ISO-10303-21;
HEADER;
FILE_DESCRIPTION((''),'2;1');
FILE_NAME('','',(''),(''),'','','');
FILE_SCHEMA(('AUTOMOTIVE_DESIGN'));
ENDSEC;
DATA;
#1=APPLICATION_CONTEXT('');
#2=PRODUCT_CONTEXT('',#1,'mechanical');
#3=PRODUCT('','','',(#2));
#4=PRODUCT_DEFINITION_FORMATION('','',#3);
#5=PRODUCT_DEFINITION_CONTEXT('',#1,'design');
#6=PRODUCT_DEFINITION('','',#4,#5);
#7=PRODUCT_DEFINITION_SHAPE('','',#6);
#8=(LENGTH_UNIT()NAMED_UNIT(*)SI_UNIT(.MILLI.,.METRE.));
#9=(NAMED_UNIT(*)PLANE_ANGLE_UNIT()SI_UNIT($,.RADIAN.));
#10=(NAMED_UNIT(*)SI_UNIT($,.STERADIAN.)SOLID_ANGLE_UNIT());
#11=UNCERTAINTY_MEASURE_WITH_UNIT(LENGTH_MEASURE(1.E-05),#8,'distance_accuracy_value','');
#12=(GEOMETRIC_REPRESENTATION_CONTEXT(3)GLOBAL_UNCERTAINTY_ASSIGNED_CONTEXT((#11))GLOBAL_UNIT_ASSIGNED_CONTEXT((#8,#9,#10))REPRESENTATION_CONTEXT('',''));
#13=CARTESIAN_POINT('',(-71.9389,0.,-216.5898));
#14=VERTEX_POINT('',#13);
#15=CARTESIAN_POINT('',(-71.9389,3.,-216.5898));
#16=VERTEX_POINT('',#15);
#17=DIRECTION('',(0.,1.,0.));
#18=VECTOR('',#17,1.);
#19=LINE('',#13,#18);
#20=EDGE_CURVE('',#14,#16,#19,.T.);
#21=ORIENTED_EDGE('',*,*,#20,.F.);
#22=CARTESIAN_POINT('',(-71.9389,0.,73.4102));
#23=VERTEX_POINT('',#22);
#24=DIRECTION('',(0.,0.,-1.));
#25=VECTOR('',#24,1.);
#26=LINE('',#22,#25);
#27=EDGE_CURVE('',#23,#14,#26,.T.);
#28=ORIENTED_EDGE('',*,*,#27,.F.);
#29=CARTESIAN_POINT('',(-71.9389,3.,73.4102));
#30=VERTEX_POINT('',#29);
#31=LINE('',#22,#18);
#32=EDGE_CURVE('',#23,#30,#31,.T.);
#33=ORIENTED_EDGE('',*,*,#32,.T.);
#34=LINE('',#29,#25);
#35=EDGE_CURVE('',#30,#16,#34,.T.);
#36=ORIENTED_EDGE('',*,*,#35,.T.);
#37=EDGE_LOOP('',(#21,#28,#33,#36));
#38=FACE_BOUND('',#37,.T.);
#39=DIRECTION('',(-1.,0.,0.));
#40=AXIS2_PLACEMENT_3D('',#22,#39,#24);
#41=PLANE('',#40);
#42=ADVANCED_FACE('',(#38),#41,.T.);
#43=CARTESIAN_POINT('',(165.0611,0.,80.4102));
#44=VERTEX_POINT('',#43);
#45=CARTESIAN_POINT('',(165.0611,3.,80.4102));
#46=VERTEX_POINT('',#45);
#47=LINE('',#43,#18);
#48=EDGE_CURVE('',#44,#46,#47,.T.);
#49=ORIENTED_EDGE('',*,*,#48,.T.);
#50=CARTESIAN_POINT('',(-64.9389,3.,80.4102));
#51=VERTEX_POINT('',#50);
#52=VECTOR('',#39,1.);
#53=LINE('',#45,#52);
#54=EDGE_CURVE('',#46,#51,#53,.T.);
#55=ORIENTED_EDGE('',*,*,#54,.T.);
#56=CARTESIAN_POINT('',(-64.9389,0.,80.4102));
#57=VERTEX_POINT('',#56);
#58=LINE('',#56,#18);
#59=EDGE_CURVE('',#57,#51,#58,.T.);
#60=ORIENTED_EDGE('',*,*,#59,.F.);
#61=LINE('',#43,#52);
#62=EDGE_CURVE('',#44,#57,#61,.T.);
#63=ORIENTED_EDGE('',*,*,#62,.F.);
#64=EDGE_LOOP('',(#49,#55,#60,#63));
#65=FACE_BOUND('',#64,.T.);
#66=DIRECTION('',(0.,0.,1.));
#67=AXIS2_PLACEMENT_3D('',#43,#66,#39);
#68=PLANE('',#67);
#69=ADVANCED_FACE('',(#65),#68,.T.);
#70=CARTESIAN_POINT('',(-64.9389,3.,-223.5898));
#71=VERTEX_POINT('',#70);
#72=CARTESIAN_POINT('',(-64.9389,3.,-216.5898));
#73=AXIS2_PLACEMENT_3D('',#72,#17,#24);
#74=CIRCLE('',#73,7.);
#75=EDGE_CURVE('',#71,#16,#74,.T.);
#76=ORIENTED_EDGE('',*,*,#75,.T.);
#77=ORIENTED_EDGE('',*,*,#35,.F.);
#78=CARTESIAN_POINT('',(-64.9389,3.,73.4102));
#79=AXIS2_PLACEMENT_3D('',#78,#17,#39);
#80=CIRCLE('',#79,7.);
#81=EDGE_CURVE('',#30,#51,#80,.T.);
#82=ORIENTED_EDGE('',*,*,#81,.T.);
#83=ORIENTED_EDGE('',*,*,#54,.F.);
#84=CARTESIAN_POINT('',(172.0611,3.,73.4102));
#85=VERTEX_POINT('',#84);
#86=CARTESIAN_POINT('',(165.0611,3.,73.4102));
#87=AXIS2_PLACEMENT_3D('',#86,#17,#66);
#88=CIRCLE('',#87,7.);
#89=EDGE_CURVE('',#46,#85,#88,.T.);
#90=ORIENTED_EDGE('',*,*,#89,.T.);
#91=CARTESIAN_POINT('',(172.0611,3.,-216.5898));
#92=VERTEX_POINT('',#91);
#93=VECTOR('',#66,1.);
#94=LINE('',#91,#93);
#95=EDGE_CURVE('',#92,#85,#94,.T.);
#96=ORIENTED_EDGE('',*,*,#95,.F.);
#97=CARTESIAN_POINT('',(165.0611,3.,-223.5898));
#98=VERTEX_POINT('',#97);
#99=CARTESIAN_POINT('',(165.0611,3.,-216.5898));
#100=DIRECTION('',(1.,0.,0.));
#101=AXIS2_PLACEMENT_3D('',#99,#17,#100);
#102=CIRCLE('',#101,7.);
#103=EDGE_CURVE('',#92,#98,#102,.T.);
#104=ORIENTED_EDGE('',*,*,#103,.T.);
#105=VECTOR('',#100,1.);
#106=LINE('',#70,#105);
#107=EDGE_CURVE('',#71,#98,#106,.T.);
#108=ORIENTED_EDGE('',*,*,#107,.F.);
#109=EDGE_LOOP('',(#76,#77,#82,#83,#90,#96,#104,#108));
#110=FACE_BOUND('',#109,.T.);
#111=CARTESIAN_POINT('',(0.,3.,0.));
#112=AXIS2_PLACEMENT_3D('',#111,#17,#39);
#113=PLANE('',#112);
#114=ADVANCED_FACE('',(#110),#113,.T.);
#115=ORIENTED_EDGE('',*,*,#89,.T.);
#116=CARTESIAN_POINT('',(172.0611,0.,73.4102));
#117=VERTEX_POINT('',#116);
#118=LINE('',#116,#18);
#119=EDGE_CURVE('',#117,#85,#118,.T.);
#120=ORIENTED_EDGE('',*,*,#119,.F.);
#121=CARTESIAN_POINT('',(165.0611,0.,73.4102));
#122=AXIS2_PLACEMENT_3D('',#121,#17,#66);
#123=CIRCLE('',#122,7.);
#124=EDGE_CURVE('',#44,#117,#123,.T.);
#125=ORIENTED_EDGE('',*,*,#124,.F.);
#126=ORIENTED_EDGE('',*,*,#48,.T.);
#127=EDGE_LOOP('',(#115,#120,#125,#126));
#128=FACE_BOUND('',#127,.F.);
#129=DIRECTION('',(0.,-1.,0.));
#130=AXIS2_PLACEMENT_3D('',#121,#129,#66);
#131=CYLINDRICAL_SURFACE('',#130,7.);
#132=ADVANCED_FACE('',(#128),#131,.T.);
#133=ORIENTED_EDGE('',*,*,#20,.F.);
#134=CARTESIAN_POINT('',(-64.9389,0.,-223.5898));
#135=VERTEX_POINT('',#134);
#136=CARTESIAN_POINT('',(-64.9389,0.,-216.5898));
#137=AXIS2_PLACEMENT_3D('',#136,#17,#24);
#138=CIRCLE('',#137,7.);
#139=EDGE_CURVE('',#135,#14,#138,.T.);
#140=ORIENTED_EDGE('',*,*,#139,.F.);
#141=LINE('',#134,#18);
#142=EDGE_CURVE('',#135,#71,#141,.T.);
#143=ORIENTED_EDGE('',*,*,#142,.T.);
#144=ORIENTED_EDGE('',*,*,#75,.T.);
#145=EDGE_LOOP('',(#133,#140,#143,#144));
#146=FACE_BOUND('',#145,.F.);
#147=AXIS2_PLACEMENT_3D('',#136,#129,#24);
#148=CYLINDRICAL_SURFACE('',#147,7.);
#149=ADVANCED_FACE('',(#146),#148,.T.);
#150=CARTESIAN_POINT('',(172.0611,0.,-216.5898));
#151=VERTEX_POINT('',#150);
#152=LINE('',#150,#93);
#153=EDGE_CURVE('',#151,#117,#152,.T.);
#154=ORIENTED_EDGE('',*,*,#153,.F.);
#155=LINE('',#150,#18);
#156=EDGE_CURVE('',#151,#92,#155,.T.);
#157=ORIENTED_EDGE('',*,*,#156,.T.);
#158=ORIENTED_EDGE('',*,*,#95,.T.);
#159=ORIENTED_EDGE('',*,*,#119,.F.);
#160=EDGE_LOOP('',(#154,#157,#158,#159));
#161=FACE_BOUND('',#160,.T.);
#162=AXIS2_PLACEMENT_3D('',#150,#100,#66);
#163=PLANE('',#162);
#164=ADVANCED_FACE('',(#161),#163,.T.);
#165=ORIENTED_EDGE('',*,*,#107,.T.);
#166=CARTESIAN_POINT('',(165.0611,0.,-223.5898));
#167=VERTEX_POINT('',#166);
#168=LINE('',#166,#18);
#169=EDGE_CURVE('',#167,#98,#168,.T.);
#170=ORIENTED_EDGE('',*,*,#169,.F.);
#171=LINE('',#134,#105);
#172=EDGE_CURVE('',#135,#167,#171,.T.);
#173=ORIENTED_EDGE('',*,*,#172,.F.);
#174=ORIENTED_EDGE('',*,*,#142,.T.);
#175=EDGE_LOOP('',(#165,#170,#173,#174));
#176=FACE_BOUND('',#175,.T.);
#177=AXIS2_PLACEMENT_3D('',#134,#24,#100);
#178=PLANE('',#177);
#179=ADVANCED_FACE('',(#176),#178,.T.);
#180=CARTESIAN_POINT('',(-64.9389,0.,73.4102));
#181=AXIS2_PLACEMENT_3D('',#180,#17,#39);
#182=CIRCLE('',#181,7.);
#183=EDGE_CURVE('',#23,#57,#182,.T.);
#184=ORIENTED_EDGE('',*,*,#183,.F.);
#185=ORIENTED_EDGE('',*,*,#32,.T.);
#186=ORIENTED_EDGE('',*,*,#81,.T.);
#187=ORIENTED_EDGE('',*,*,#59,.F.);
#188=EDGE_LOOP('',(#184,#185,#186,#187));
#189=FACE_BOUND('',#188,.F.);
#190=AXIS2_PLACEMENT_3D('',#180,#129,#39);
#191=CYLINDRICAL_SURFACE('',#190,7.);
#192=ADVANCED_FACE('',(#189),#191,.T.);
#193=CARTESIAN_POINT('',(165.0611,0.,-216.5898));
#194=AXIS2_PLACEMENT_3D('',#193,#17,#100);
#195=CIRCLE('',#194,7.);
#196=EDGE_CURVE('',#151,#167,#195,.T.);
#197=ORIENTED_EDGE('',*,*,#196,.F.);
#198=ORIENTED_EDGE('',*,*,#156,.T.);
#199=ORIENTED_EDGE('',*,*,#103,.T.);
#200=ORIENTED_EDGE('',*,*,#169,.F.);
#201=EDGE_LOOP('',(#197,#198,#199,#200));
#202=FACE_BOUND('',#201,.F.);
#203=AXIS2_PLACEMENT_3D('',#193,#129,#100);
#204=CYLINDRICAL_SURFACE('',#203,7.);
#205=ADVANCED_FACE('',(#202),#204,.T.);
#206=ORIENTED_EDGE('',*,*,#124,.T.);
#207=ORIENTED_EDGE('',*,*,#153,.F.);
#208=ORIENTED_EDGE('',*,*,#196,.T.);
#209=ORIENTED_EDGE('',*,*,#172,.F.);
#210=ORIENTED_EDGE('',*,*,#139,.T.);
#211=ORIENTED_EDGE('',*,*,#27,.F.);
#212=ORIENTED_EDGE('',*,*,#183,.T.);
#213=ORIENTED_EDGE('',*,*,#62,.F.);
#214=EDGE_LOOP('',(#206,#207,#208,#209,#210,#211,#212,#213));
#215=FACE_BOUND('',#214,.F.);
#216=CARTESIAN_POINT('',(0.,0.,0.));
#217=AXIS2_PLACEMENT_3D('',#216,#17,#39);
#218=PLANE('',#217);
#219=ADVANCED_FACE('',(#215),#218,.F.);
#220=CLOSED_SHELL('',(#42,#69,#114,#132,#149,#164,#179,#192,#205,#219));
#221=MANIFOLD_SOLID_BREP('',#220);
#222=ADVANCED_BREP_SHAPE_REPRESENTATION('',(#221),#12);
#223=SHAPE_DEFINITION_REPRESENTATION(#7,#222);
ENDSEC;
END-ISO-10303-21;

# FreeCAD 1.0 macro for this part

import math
import FreeCAD as App
import Part
import Sketcher

doc = App.newDocument("Part")
params = doc.addObject("Spreadsheet::Sheet", "Params")
for row, (alias, value) in enumerate([
    ("sketch1_radius", "7 mm"),
    ("sketch1_height", "290 mm"),
    ("pad1_length", "3 mm"),
], start=1):
    params.set(f"A{row}", alias)
    params.set(f"B{row}", "=" + value)
    params.setAlias(f"B{row}", alias)

body = doc.addObject("PartDesign::Body", "Body")

# Sketch on XZ plane
sketch1 = body.newObject("Sketcher::SketchObject", "Sketch")
sketch1.AttachmentSupport = (doc.getObject("XZ_Plane"), [""])
sketch1.MapMode = "FlatFace"
sketch1.addGeometry(Part.LineSegment(App.Vector(165, -224, 0), App.Vector(-65, -224, 0)), False)
sketch1.addGeometry(Part.ArcOfCircle(Part.Circle(App.Vector(-65, -217, 0), App.Vector(0, 0, 1), 7), math.radians(180), math.radians(270)), False)
sketch1.addGeometry(Part.LineSegment(App.Vector(-72, -217, 0), App.Vector(-72, 73, 0)), False)
sketch1.addGeometry(Part.ArcOfCircle(Part.Circle(App.Vector(-65, 73, 0), App.Vector(0, 0, 1), 7), math.radians(90), math.radians(180)), False)
sketch1.addGeometry(Part.LineSegment(App.Vector(-65, 80, 0), App.Vector(165, 80, 0)), False)
sketch1.addGeometry(Part.ArcOfCircle(Part.Circle(App.Vector(165, 73, 0), App.Vector(0, 0, 1), 7), math.radians(0), math.radians(90)), False)
sketch1.addGeometry(Part.LineSegment(App.Vector(172, 73, 0), App.Vector(172, -217, 0)), False)
sketch1.addGeometry(Part.ArcOfCircle(Part.Circle(App.Vector(165, -217, 0), App.Vector(0, 0, 1), 7), math.radians(-90), math.radians(0)), False)
sketch1.addConstraint(Sketcher.Constraint("Tangent", 0, 2, 1, 2))
sketch1.addConstraint(Sketcher.Constraint("Tangent", 1, 1, 2, 1))
sketch1.addConstraint(Sketcher.Constraint("Tangent", 2, 2, 3, 2))
sketch1.addConstraint(Sketcher.Constraint("Tangent", 3, 1, 4, 1))
sketch1.addConstraint(Sketcher.Constraint("Tangent", 4, 2, 5, 2))
sketch1.addConstraint(Sketcher.Constraint("Tangent", 5, 1, 6, 1))
sketch1.addConstraint(Sketcher.Constraint("Tangent", 6, 2, 7, 2))
sketch1.addConstraint(Sketcher.Constraint("Tangent", 7, 1, 0, 1))
sketch1.addConstraint(Sketcher.Constraint("Horizontal", 0))
sketch1.addConstraint(Sketcher.Constraint("Vertical", 2))
sketch1.addConstraint(Sketcher.Constraint("Horizontal", 4))
sketch1.addConstraint(Sketcher.Constraint("Vertical", 6))
sketch1.addConstraint(Sketcher.Constraint("Equal", 1, 3))
sketch1.addConstraint(Sketcher.Constraint("Equal", 3, 5))
sketch1.addConstraint(Sketcher.Constraint("Equal", 5, 7))
sketch1.addConstraint(Sketcher.Constraint("Radius", 1, 7.0))
sketch1.addConstraint(Sketcher.Constraint("DistanceX", 2, 2, 5, 1, 244.0))
sketch1.addConstraint(Sketcher.Constraint("DistanceY", 2, 1, 2, 2, 290.0))
sketch1.addConstraint(Sketcher.Constraint("DistanceX", 1, 3, -1, 1, 64.939))
sketch1.addConstraint(Sketcher.Constraint("DistanceY", 1, 3, -1, 1, 216.5898))
sketch1.setExpression("Constraints[15]", "Params.sketch1_radius")
sketch1.setExpression("Constraints[17]", "Params.sketch1_height")
pad1 = body.newObject("PartDesign::Pad", "Pad")
pad1.Profile = sketch1
pad1.setExpression("Length", "Params.pad1_length")
pad1.Reversed = True

doc.recompute()
